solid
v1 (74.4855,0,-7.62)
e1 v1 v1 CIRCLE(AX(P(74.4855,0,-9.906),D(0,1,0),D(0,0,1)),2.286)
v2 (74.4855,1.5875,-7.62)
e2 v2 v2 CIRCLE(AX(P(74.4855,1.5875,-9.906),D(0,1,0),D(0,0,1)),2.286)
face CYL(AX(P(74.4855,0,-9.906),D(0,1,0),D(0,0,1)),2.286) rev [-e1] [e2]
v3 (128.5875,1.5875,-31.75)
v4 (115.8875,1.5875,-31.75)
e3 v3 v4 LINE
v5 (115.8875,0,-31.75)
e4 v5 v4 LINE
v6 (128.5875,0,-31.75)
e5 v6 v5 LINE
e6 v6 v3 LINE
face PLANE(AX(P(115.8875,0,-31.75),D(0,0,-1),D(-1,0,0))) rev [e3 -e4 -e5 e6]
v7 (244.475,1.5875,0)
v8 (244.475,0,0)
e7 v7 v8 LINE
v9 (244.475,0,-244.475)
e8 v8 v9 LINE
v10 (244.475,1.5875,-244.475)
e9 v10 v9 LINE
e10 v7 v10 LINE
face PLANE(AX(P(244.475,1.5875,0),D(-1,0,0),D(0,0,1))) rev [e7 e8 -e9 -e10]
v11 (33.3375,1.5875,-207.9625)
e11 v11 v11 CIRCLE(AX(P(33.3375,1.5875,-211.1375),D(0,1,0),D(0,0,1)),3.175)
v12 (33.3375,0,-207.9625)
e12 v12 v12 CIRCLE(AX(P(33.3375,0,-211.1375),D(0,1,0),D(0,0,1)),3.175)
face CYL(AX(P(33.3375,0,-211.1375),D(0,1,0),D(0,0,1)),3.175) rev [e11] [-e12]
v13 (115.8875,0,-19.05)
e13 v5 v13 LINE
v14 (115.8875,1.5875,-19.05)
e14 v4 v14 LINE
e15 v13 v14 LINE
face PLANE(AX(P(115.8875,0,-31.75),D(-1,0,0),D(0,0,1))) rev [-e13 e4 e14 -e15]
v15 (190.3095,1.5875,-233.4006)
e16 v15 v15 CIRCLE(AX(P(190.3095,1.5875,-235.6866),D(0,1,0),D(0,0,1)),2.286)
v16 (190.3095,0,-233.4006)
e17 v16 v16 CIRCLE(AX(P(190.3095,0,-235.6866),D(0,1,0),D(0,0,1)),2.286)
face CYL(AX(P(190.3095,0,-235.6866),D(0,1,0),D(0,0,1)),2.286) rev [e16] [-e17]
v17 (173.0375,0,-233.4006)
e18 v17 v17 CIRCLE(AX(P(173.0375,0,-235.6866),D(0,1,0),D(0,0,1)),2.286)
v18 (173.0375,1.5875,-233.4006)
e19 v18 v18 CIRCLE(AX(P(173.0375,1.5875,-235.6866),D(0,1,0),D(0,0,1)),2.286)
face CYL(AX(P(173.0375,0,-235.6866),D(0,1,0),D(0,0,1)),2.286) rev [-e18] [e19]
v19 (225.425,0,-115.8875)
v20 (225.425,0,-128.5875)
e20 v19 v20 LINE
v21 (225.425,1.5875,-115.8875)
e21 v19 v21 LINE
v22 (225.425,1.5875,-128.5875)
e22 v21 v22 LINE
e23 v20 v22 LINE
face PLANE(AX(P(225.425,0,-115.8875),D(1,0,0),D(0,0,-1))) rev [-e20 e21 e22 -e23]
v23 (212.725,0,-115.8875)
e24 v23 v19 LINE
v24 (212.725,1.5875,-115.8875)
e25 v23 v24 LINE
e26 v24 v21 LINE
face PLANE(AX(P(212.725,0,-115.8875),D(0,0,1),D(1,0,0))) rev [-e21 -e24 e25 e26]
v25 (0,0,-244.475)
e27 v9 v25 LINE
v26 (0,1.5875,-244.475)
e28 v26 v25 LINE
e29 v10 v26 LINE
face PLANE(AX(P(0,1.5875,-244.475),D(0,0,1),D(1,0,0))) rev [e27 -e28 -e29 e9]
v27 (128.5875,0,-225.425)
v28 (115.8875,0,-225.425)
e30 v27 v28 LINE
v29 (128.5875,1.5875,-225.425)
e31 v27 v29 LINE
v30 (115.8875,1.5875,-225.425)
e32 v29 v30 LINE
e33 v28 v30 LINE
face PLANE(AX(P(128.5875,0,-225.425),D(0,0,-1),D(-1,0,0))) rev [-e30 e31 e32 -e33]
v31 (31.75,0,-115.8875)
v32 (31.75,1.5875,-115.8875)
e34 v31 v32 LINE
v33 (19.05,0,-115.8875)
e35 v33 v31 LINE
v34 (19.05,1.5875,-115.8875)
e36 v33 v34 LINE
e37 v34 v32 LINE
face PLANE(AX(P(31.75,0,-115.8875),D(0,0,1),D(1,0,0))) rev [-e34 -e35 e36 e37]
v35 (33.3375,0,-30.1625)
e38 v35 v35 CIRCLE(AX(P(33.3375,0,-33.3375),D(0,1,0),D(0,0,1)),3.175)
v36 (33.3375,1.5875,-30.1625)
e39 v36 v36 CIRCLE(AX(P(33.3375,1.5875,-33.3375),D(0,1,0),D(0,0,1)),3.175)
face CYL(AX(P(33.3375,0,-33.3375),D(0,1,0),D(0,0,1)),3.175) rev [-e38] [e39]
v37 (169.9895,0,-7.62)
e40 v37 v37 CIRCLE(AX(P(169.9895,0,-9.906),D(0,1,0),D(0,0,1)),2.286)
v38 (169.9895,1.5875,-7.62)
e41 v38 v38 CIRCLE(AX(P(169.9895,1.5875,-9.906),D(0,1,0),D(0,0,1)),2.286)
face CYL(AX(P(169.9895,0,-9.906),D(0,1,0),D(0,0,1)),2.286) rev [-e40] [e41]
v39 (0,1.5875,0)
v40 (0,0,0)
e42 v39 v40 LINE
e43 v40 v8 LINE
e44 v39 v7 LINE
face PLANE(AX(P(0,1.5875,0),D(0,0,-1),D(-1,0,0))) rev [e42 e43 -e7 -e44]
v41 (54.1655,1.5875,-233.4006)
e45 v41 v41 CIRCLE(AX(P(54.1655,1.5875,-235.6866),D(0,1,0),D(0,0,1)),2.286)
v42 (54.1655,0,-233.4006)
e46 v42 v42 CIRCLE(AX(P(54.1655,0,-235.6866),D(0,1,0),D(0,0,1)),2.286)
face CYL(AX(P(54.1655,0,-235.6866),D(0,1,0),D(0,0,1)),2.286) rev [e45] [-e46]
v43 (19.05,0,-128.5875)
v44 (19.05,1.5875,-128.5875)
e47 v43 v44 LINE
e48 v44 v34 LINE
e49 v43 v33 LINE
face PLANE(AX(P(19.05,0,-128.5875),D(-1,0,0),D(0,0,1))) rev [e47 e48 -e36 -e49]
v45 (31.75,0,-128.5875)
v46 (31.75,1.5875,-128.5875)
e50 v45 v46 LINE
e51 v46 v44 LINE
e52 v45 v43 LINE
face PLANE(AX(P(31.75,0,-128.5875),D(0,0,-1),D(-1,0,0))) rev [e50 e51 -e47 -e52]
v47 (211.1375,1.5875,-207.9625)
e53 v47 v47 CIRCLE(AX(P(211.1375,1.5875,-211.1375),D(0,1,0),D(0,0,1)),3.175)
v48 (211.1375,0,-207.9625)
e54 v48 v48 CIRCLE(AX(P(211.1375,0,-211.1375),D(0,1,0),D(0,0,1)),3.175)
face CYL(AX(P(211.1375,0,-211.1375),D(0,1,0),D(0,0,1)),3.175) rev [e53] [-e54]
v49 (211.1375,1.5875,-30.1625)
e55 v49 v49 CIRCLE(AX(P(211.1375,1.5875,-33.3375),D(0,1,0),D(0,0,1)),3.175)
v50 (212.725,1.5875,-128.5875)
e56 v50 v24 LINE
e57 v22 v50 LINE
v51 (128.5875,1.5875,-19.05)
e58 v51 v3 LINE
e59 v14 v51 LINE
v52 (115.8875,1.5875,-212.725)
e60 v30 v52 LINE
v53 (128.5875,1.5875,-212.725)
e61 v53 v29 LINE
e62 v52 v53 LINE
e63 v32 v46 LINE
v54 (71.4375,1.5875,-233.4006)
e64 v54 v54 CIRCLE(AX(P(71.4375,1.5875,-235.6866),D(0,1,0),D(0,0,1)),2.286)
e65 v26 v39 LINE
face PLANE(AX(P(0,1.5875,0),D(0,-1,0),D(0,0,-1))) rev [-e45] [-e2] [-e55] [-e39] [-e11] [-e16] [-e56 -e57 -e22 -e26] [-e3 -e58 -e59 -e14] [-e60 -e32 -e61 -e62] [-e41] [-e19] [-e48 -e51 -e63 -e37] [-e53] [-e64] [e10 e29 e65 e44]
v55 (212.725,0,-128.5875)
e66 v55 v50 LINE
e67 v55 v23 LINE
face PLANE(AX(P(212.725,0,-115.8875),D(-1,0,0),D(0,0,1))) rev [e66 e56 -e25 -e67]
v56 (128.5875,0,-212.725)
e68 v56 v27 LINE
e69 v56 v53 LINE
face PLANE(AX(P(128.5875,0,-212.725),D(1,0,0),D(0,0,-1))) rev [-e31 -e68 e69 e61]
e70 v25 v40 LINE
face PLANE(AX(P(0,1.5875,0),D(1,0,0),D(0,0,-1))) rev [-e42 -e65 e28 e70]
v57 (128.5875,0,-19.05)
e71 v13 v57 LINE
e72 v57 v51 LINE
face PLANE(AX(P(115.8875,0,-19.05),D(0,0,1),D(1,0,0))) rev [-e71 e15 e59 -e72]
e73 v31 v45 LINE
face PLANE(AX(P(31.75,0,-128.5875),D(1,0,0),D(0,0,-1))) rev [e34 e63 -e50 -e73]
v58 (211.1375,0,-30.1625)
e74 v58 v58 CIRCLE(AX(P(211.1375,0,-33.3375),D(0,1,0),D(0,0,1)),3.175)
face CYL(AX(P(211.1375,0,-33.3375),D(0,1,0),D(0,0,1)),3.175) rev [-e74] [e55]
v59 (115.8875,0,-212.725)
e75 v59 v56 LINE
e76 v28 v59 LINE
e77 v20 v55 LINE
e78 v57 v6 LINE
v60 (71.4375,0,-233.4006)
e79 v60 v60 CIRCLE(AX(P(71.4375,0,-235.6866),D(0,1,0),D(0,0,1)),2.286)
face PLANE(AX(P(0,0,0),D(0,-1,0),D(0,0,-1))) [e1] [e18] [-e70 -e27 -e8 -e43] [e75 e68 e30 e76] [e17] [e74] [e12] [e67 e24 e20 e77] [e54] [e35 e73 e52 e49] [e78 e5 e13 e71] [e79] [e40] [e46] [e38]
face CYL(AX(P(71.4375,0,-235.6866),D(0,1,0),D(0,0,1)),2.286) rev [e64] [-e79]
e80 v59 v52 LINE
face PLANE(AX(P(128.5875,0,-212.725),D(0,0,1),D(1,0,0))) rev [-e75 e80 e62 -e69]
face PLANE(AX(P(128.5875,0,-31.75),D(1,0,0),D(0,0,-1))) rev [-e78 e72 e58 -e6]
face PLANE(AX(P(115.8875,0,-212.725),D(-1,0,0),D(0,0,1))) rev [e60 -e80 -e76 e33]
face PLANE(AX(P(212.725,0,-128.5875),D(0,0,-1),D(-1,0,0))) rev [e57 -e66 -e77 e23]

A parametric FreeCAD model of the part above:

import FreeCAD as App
import Part
import Sketcher
from FreeCAD import Vector
Q = App.Units.Quantity

doc = App.newDocument("Part")
params = doc.addObject("Spreadsheet::Sheet", "Params")
for row, (alias, value) in enumerate([
    ("sketch1_width", "9.625 in"),
    ("pad1_length", "0.0625 in"),
    ("sketch2_diameter", "0.18 in"),
    ("sketch3_diameter", "0.25 in"),
    ("sketch4_width", "0.5 in"),
], start=1):
    params.set(f"A{row}", alias)
    params.set(f"B{row}", "=" + value)
    params.setAlias(f"B{row}", alias)

body = doc.addObject("PartDesign::Body", "Body")

# Sketch on XZ plane
sketch1 = body.newObject("Sketcher::SketchObject", "Sketch")
sketch1.AttachmentSupport = (doc.getObject("XZ_Plane"), [""])
sketch1.MapMode = "FlatFace"
sketch1.addGeometry(Part.LineSegment(Vector(0, -244, 0), Vector(0, 0, 0)), False)
sketch1.addGeometry(Part.LineSegment(Vector(0, 0, 0), Vector(244, 0, 0)), False)
sketch1.addGeometry(Part.LineSegment(Vector(244, 0, 0), Vector(244, -244, 0)), False)
sketch1.addGeometry(Part.LineSegment(Vector(244, -244, 0), Vector(0, -244, 0)), False)
sketch1.addConstraint(Sketcher.Constraint("Coincident", 0, 2, 1, 1))
sketch1.addConstraint(Sketcher.Constraint("Coincident", 1, 2, 2, 1))
sketch1.addConstraint(Sketcher.Constraint("Coincident", 2, 2, 3, 1))
sketch1.addConstraint(Sketcher.Constraint("Coincident", 3, 2, 0, 1))
sketch1.addConstraint(Sketcher.Constraint("Vertical", 0))
sketch1.addConstraint(Sketcher.Constraint("Horizontal", 1))
sketch1.addConstraint(Sketcher.Constraint("Vertical", 2))
sketch1.addConstraint(Sketcher.Constraint("Horizontal", 3))
sketch1.addConstraint(Sketcher.Constraint("Coincident", 0, 2, -1, 1))
sketch1.addConstraint(Sketcher.Constraint("Equal", 3, 0))
sketch1.addConstraint(Sketcher.Constraint("DistanceX", 1, 1, 1, 2, Q("9.625 in")))
sketch1.setExpression("Constraints[10]", "Params.sketch1_width")
pad1 = body.newObject("PartDesign::Pad", "Pad")
pad1.Profile = sketch1
pad1.setExpression("Length", "Params.pad1_length")
pad1.Reversed = True

# Sketch on XZ plane
sketch2 = body.newObject("Sketcher::SketchObject", "Sketch001")
sketch2.AttachmentSupport = (doc.getObject("XZ_Plane"), [""])
sketch2.MapMode = "FlatFace"
sketch2.AttachmentOffset = App.Placement(Vector(0, 0, -0.0625 * 25.4), App.Rotation())
sketch2.addGeometry(Part.Circle(Vector(54.2, -235.7, 0), Vector(0, 0, 1), 2.3), False)
sketch2.addGeometry(Part.Circle(Vector(71.4, -235.7, 0), Vector(0, 0, 1), 2.3), False)
sketch2.addGeometry(Part.Circle(Vector(173, -235.7, 0), Vector(0, 0, 1), 2.3), False)
sketch2.addGeometry(Part.Circle(Vector(190.3, -235.7, 0), Vector(0, 0, 1), 2.3), False)
sketch2.addGeometry(Part.Circle(Vector(74.5, -9.9, 0), Vector(0, 0, 1), 2.3), False)
sketch2.addGeometry(Part.Circle(Vector(170, -9.9, 0), Vector(0, 0, 1), 2.3), False)
sketch2.addConstraint(Sketcher.Constraint("Equal", 0, 1))
sketch2.addConstraint(Sketcher.Constraint("Equal", 1, 2))
sketch2.addConstraint(Sketcher.Constraint("Equal", 2, 3))
sketch2.addConstraint(Sketcher.Constraint("Equal", 3, 4))
sketch2.addConstraint(Sketcher.Constraint("Equal", 4, 5))
sketch2.addConstraint(Sketcher.Constraint("Horizontal", 0, 3, 1, 3))
sketch2.addConstraint(Sketcher.Constraint("Horizontal", 1, 3, 2, 3))
sketch2.addConstraint(Sketcher.Constraint("Horizontal", 2, 3, 3, 3))
sketch2.addConstraint(Sketcher.Constraint("Horizontal", 4, 3, 5, 3))
sketch2.addConstraint(Sketcher.Constraint("Diameter", 0, Q("0.18 in")))
sketch2.addConstraint(Sketcher.Constraint("DistanceX", 1, 3, 2, 3, Q("4 in")))
sketch2.addConstraint(Sketcher.Constraint("DistanceX", 0, 3, 4, 3, Q("0.8 in")))
sketch2.addConstraint(Sketcher.Constraint("DistanceX", 5, 3, 3, 3, Q("0.8 in")))
sketch2.addConstraint(Sketcher.Constraint("DistanceY", 4, 3, -1, 1, Q("0.39 in")))
sketch2.addConstraint(Sketcher.Constraint("DistanceX", 0, 3, 1, 3, Q("0.68 in")))
sketch2.addConstraint(Sketcher.Constraint("DistanceX", 2, 3, 3, 3, Q("0.68 in")))
sketch2.addConstraint(Sketcher.Constraint("DistanceY", 0, 3, -1, 1, Q("9.279 in")))
sketch2.addConstraint(Sketcher.Constraint("DistanceX", -1, 1, 1, 3, Q("2.8125 in")))
sketch2.setExpression("Constraints[9]", "Params.sketch2_diameter")
pocket1 = body.newObject("PartDesign::Pocket", "Pocket")
pocket1.Profile = sketch2
pocket1.Type = "ThroughAll"
pocket1.Reversed = True

# Sketch on XZ plane
sketch3 = body.newObject("Sketcher::SketchObject", "Sketch002")
sketch3.AttachmentSupport = (doc.getObject("XZ_Plane"), [""])
sketch3.MapMode = "FlatFace"
sketch3.AttachmentOffset = App.Placement(Vector(0, 0, -0.0625 * 25.4), App.Rotation())
sketch3.addGeometry(Part.Circle(Vector(211.1, -33.3, 0), Vector(0, 0, 1), 3.2), False)
sketch3.addGeometry(Part.Circle(Vector(33.3, -211.1, 0), Vector(0, 0, 1), 3.2), False)
sketch3.addGeometry(Part.Circle(Vector(211.1, -211.1, 0), Vector(0, 0, 1), 3.2), False)
sketch3.addGeometry(Part.Circle(Vector(33.3, -33.3, 0), Vector(0, 0, 1), 3.2), False)
sketch3.addConstraint(Sketcher.Constraint("Equal", 0, 1))
sketch3.addConstraint(Sketcher.Constraint("Equal", 1, 2))
sketch3.addConstraint(Sketcher.Constraint("Equal", 2, 3))
sketch3.addConstraint(Sketcher.Constraint("Horizontal", 1, 3, 2, 3))
sketch3.addConstraint(Sketcher.Constraint("Horizontal", 0, 3, 3, 3))
sketch3.addConstraint(Sketcher.Constraint("Vertical", 0, 3, 2, 3))
sketch3.addConstraint(Sketcher.Constraint("Vertical", 1, 3, 3, 3))
sketch3.addConstraint(Sketcher.Constraint("Diameter", 0, Q("0.25 in")))
sketch3.addConstraint(Sketcher.Constraint("DistanceX", 1, 3, 0, 3, Q("7 in")))
sketch3.addConstraint(Sketcher.Constraint("DistanceY", 1, 3, 0, 3, Q("7 in")))
sketch3.addConstraint(Sketcher.Constraint("DistanceX", -1, 1, 0, 3, Q("8.3125 in")))
sketch3.addConstraint(Sketcher.Constraint("DistanceY", 0, 3, -1, 1, Q("1.3125 in")))
sketch3.setExpression("Constraints[7]", "Params.sketch3_diameter")
pocket2 = body.newObject("PartDesign::Pocket", "Pocket001")
pocket2.Profile = sketch3
pocket2.Type = "ThroughAll"
pocket2.Reversed = True

# Sketch on XZ plane
sketch4 = body.newObject("Sketcher::SketchObject", "Sketch003")
sketch4.AttachmentSupport = (doc.getObject("XZ_Plane"), [""])
sketch4.MapMode = "FlatFace"
sketch4.AttachmentOffset = App.Placement(Vector(0, 0, -0.0625 * 25.4), App.Rotation())
sketch4.addGeometry(Part.LineSegment(Vector(116, -32, 0), Vector(116, -19, 0)), False)
sketch4.addGeometry(Part.LineSegment(Vector(116, -19, 0), Vector(129, -19, 0)), False)
sketch4.addGeometry(Part.LineSegment(Vector(129, -19, 0), Vector(129, -32, 0)), False)
sketch4.addGeometry(Part.LineSegment(Vector(129, -32, 0), Vector(116, -32, 0)), False)
sketch4.addGeometry(Part.LineSegment(Vector(19, -129, 0), Vector(19, -116, 0)), False)
sketch4.addGeometry(Part.LineSegment(Vector(19, -116, 0), Vector(32, -116, 0)), False)
sketch4.addGeometry(Part.LineSegment(Vector(32, -116, 0), Vector(32, -129, 0)), False)
sketch4.addGeometry(Part.LineSegment(Vector(32, -129, 0), Vector(19, -129, 0)), False)
sketch4.addGeometry(Part.LineSegment(Vector(116, -225, 0), Vector(116, -213, 0)), False)
sketch4.addGeometry(Part.LineSegment(Vector(116, -213, 0), Vector(129, -213, 0)), False)
sketch4.addGeometry(Part.LineSegment(Vector(129, -213, 0), Vector(129, -225, 0)), False)
sketch4.addGeometry(Part.LineSegment(Vector(129, -225, 0), Vector(116, -225, 0)), False)
sketch4.addGeometry(Part.LineSegment(Vector(213, -129, 0), Vector(213, -116, 0)), False)
sketch4.addGeometry(Part.LineSegment(Vector(213, -116, 0), Vector(225, -116, 0)), False)
sketch4.addGeometry(Part.LineSegment(Vector(225, -116, 0), Vector(225, -129, 0)), False)
sketch4.addGeometry(Part.LineSegment(Vector(225, -129, 0), Vector(213, -129, 0)), False)
sketch4.addConstraint(Sketcher.Constraint("Coincident", 0, 2, 1, 1))
sketch4.addConstraint(Sketcher.Constraint("Coincident", 1, 2, 2, 1))
sketch4.addConstraint(Sketcher.Constraint("Coincident", 2, 2, 3, 1))
sketch4.addConstraint(Sketcher.Constraint("Coincident", 3, 2, 0, 1))
sketch4.addConstraint(Sketcher.Constraint("Coincident", 4, 2, 5, 1))
sketch4.addConstraint(Sketcher.Constraint("Coincident", 5, 2, 6, 1))
sketch4.addConstraint(Sketcher.Constraint("Coincident", 6, 2, 7, 1))
sketch4.addConstraint(Sketcher.Constraint("Coincident", 7, 2, 4, 1))
sketch4.addConstraint(Sketcher.Constraint("Coincident", 8, 2, 9, 1))
sketch4.addConstraint(Sketcher.Constraint("Coincident", 9, 2, 10, 1))
sketch4.addConstraint(Sketcher.Constraint("Coincident", 10, 2, 11, 1))
sketch4.addConstraint(Sketcher.Constraint("Coincident", 11, 2, 8, 1))
sketch4.addConstraint(Sketcher.Constraint("Coincident", 12, 2, 13, 1))
sketch4.addConstraint(Sketcher.Constraint("Coincident", 13, 2, 14, 1))
sketch4.addConstraint(Sketcher.Constraint("Coincident", 14, 2, 15, 1))
sketch4.addConstraint(Sketcher.Constraint("Coincident", 15, 2, 12, 1))
sketch4.addConstraint(Sketcher.Constraint("Vertical", 0))
sketch4.addConstraint(Sketcher.Constraint("Horizontal", 1))
sketch4.addConstraint(Sketcher.Constraint("Vertical", 2))
sketch4.addConstraint(Sketcher.Constraint("Horizontal", 3))
sketch4.addConstraint(Sketcher.Constraint("Vertical", 4))
sketch4.addConstraint(Sketcher.Constraint("Horizontal", 5))
sketch4.addConstraint(Sketcher.Constraint("Vertical", 6))
sketch4.addConstraint(Sketcher.Constraint("Horizontal", 7))
sketch4.addConstraint(Sketcher.Constraint("Vertical", 8))
sketch4.addConstraint(Sketcher.Constraint("Horizontal", 9))
sketch4.addConstraint(Sketcher.Constraint("Vertical", 10))
sketch4.addConstraint(Sketcher.Constraint("Horizontal", 11))
sketch4.addConstraint(Sketcher.Constraint("Vertical", 12))
sketch4.addConstraint(Sketcher.Constraint("Horizontal", 13))
sketch4.addConstraint(Sketcher.Constraint("Vertical", 14))
sketch4.addConstraint(Sketcher.Constraint("Horizontal", 15))
sketch4.addConstraint(Sketcher.Constraint("Horizontal", 5, 2, 12, 2))
sketch4.addConstraint(Sketcher.Constraint("Horizontal", 7, 2, 14, 2))
sketch4.addConstraint(Sketcher.Constraint("Vertical", 3, 2, 8, 2))
sketch4.addConstraint(Sketcher.Constraint("Vertical", 2, 2, 9, 2))
sketch4.addConstraint(Sketcher.Constraint("Equal", 3, 5))
sketch4.addConstraint(Sketcher.Constraint("Equal", 11, 13))
sketch4.addConstraint(Sketcher.Constraint("Equal", 15, 0))
sketch4.addConstraint(Sketcher.Constraint("Equal", 2, 4))
sketch4.addConstraint(Sketcher.Constraint("Equal", 6, 8))
sketch4.addConstraint(Sketcher.Constraint("DistanceX", 1, 1, 1, 2, Q("0.5 in")))
sketch4.addConstraint(Sketcher.Constraint("DistanceY", 0, 2, -1, 1, Q("0.75 in")))
sketch4.addConstraint(Sketcher.Constraint("DistanceX", -1, 1, 4, 2, Q("0.75 in")))
sketch4.addConstraint(Sketcher.Constraint("DistanceX", -1, 1, 0, 2, Q("4.5625 in")))
sketch4.addConstraint(Sketcher.Constraint("DistanceY", 4, 2, -1, 1, Q("4.5625 in")))
sketch4.addConstraint(Sketcher.Constraint("DistanceY", 8, 2, -1, 1, Q("8.375 in")))
sketch4.addConstraint(Sketcher.Constraint("DistanceX", -1, 1, 12, 2, Q("8.375 in")))
sketch4.setExpression("Constraints[41]", "Params.sketch4_width")
pocket3 = body.newObject("PartDesign::Pocket", "Pocket002")
pocket3.Profile = sketch4
pocket3.Type = "ThroughAll"
pocket3.Reversed = True

doc.recompute()
